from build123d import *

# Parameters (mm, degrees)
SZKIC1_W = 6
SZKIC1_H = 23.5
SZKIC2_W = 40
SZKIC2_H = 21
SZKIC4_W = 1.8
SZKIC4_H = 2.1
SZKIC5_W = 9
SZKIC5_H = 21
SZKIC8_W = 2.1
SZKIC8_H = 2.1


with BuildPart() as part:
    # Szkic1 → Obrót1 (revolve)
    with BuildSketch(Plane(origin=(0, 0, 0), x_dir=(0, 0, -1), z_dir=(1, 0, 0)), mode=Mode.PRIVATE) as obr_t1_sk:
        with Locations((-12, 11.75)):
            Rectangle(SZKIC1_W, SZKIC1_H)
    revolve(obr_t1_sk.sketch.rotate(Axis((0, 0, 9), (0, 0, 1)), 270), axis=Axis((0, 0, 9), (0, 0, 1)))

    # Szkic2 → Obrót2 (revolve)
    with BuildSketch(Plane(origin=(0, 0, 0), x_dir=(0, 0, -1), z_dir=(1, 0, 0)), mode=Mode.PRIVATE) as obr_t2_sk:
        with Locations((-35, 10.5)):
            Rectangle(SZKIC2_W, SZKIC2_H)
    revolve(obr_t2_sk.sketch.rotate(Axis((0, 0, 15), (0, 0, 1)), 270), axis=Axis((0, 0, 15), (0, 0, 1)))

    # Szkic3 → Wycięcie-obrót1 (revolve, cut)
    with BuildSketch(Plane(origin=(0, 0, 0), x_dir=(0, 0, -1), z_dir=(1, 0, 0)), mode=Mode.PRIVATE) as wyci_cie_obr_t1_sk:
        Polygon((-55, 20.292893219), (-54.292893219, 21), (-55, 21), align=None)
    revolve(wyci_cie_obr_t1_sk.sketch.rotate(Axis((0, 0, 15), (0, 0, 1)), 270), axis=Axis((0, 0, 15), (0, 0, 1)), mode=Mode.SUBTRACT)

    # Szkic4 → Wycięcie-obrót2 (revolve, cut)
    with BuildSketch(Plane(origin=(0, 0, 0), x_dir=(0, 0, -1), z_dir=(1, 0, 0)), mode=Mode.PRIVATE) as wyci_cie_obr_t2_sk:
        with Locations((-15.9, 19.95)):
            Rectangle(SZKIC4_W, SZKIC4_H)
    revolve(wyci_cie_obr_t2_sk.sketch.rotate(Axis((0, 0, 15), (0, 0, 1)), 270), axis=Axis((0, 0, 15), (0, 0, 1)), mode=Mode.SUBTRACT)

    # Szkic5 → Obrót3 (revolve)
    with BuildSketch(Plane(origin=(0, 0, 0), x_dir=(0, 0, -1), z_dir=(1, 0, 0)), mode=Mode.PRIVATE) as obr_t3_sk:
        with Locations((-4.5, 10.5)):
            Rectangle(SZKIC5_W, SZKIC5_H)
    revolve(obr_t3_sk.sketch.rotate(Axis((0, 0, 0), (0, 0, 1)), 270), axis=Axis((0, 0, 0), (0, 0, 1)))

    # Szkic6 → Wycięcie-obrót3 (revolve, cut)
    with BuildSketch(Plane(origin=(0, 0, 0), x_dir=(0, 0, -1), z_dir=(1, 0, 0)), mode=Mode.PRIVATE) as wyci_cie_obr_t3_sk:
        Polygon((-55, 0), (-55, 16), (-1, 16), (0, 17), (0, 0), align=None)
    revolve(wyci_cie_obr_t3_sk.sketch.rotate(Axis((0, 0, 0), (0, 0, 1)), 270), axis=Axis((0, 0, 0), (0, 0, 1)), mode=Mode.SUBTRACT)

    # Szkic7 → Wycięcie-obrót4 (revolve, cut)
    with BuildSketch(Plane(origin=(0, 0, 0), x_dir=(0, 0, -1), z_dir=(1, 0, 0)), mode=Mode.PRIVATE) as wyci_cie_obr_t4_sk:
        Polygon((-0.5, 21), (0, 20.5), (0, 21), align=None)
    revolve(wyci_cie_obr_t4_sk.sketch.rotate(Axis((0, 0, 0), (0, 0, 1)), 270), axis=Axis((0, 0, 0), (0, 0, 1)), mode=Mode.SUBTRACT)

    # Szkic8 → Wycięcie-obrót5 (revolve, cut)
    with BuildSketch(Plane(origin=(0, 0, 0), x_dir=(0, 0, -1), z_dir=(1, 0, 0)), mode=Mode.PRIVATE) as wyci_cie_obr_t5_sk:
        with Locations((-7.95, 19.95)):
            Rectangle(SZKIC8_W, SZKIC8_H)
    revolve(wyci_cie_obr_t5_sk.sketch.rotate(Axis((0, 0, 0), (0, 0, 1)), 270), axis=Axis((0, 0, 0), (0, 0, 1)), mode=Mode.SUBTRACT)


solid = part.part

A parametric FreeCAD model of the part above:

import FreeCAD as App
import Part
import Sketcher
from FreeCAD import Vector

doc = App.newDocument("Part")
body = doc.addObject("PartDesign::Body", "Body")

# Sketch on YZ plane
sketch1 = body.newObject("Sketcher::SketchObject", "Sketch")
sketch1.AttachmentSupport = (doc.getObject("YZ_Plane"), [""])
sketch1.MapMode = "FlatFace"
sketch1.addGeometry([
    Part.LineSegment(Vector(23.5, 15, 0), Vector(0, 15, 0)),
    Part.LineSegment(Vector(0, 15, 0), Vector(0, 9, 0)),
    Part.LineSegment(Vector(0, 9, 0), Vector(23.5, 9, 0)),
    Part.LineSegment(Vector(23.5, 9, 0), Vector(23.5, 15, 0)),
], False)
sketch1.addConstraint([
    Sketcher.Constraint("Coincident", 0, 2, 1, 1),
    Sketcher.Constraint("Coincident", 1, 2, 2, 1),
    Sketcher.Constraint("Coincident", 2, 2, 3, 1),
    Sketcher.Constraint("Coincident", 3, 2, 0, 1),
    Sketcher.Constraint("Horizontal", 0),
    Sketcher.Constraint("Vertical", 1),
    Sketcher.Constraint("Horizontal", 2),
    Sketcher.Constraint("Vertical", 3),
    Sketcher.Constraint("PointOnObject", 0, 2, -2),
    Sketcher.Constraint("DistanceY", 1, 2, 1, 1, 6.0),
    Sketcher.Constraint("DistanceX", 0, 2, 0, 1, 23.5),
    Sketcher.Constraint("DistanceY", -1, 1, 0, 2, 15.0),
])
revolution = body.newObject("PartDesign::Revolution", "Revolution")
revolution.Profile = sketch1
revolution.ReferenceAxis = (sketch1, ["V_Axis"])
revolution.Angle = 360

# Sketch on YZ plane
sketch2 = body.newObject("Sketcher::SketchObject", "Sketch001")
sketch2.AttachmentSupport = (doc.getObject("YZ_Plane"), [""])
sketch2.MapMode = "FlatFace"
sketch2.addGeometry([
    Part.LineSegment(Vector(21, 55, 0), Vector(0, 55, 0)),
    Part.LineSegment(Vector(0, 55, 0), Vector(0, 15, 0)),
    Part.LineSegment(Vector(0, 15, 0), Vector(21, 15, 0)),
    Part.LineSegment(Vector(21, 15, 0), Vector(21, 55, 0)),
], False)
sketch2.addConstraint([
    Sketcher.Constraint("Coincident", 0, 2, 1, 1),
    Sketcher.Constraint("Coincident", 1, 2, 2, 1),
    Sketcher.Constraint("Coincident", 2, 2, 3, 1),
    Sketcher.Constraint("Coincident", 3, 2, 0, 1),
    Sketcher.Constraint("Horizontal", 0),
    Sketcher.Constraint("Vertical", 1),
    Sketcher.Constraint("Horizontal", 2),
    Sketcher.Constraint("Vertical", 3),
    Sketcher.Constraint("PointOnObject", 0, 2, -2),
    Sketcher.Constraint("DistanceX", 0, 2, 0, 1, 21.0),
    Sketcher.Constraint("DistanceY", 1, 2, 1, 1, 40.0),
    Sketcher.Constraint("DistanceY", -1, 1, 0, 2, 55.0),
])
revolution2 = body.newObject("PartDesign::Revolution", "Revolution001")
revolution2.Profile = sketch2
revolution2.ReferenceAxis = (sketch2, ["V_Axis"])
revolution2.Angle = 360

# Sketch on YZ plane
sketch3 = body.newObject("Sketcher::SketchObject", "Sketch002")
sketch3.AttachmentSupport = (doc.getObject("YZ_Plane"), [""])
sketch3.MapMode = "FlatFace"
sketch3.addGeometry([
    Part.LineSegment(Vector(20.292893, 55, 0), Vector(21, 54.292893, 0)),
    Part.LineSegment(Vector(21, 54.292893, 0), Vector(21, 55, 0)),
    Part.LineSegment(Vector(21, 55, 0), Vector(20.292893, 55, 0)),
], False)
sketch3.addConstraint([
    Sketcher.Constraint("Coincident", 0, 2, 1, 1),
    Sketcher.Constraint("Coincident", 1, 2, 2, 1),
    Sketcher.Constraint("Coincident", 2, 2, 0, 1),
    Sketcher.Constraint("Vertical", 1),
    Sketcher.Constraint("Horizontal", 2),
    Sketcher.Constraint("Equal", 2, 1),
    Sketcher.Constraint("Distance", 0, 1.0),
    Sketcher.Constraint("DistanceX", -1, 1, 0, 2, 21.0),
    Sketcher.Constraint("DistanceY", -1, 1, 1, 2, 55.0),
])
groove = body.newObject("PartDesign::Groove", "Groove")
groove.Profile = sketch3
groove.ReferenceAxis = (sketch3, ["V_Axis"])
groove.Angle = 360

# Sketch on YZ plane
sketch4 = body.newObject("Sketcher::SketchObject", "Sketch003")
sketch4.AttachmentSupport = (doc.getObject("YZ_Plane"), [""])
sketch4.MapMode = "FlatFace"
sketch4.addGeometry([
    Part.LineSegment(Vector(21, 16.8, 0), Vector(18.9, 16.8, 0)),
    Part.LineSegment(Vector(18.9, 16.8, 0), Vector(18.9, 15, 0)),
    Part.LineSegment(Vector(18.9, 15, 0), Vector(21, 15, 0)),
    Part.LineSegment(Vector(21, 15, 0), Vector(21, 16.8, 0)),
], False)
sketch4.addConstraint([
    Sketcher.Constraint("Coincident", 0, 2, 1, 1),
    Sketcher.Constraint("Coincident", 1, 2, 2, 1),
    Sketcher.Constraint("Coincident", 2, 2, 3, 1),
    Sketcher.Constraint("Coincident", 3, 2, 0, 1),
    Sketcher.Constraint("Horizontal", 0),
    Sketcher.Constraint("Vertical", 1),
    Sketcher.Constraint("Horizontal", 2),
    Sketcher.Constraint("Vertical", 3),
    Sketcher.Constraint("DistanceX", 0, 2, 0, 1, 2.1),
    Sketcher.Constraint("DistanceY", 1, 2, 1, 1, 1.8),
    Sketcher.Constraint("DistanceY", -1, 1, 1, 2, 15.0),
    Sketcher.Constraint("DistanceX", -1, 1, 2, 2, 21.0),
])
groove2 = body.newObject("PartDesign::Groove", "Groove001")
groove2.Profile = sketch4
groove2.ReferenceAxis = (sketch4, ["V_Axis"])
groove2.Angle = 360

# Sketch on YZ plane
sketch5 = body.newObject("Sketcher::SketchObject", "Sketch004")
sketch5.AttachmentSupport = (doc.getObject("YZ_Plane"), [""])
sketch5.MapMode = "FlatFace"
sketch5.addGeometry([
    Part.LineSegment(Vector(21, 9, 0), Vector(0, 9, 0)),
    Part.LineSegment(Vector(0, 9, 0), Vector(0, 0, 0)),
    Part.LineSegment(Vector(0, 0, 0), Vector(21, 0, 0)),
    Part.LineSegment(Vector(21, 0, 0), Vector(21, 9, 0)),
], False)
sketch5.addConstraint([
    Sketcher.Constraint("Coincident", 0, 2, 1, 1),
    Sketcher.Constraint("Coincident", 1, 2, 2, 1),
    Sketcher.Constraint("Coincident", 2, 2, 3, 1),
    Sketcher.Constraint("Coincident", 3, 2, 0, 1),
    Sketcher.Constraint("Horizontal", 0),
    Sketcher.Constraint("Vertical", 1),
    Sketcher.Constraint("Horizontal", 2),
    Sketcher.Constraint("Vertical", 3),
    Sketcher.Constraint("Coincident", 1, 2, -1, 1),
    Sketcher.Constraint("DistanceX", 0, 2, 0, 1, 21.0),
    Sketcher.Constraint("DistanceY", 1, 2, 1, 1, 9.0),
])
revolution3 = body.newObject("PartDesign::Revolution", "Revolution002")
revolution3.Profile = sketch5
revolution3.ReferenceAxis = (sketch5, ["V_Axis"])
revolution3.Angle = 360

# Sketch on YZ plane
sketch6 = body.newObject("Sketcher::SketchObject", "Sketch005")
sketch6.AttachmentSupport = (doc.getObject("YZ_Plane"), [""])
sketch6.MapMode = "FlatFace"
sketch6.addGeometry([
    Part.LineSegment(Vector(16, 55, 0), Vector(0, 55, 0)),  # 0
    Part.LineSegment(Vector(0, 55, 0), Vector(0, 0, 0)),  # 1
    Part.LineSegment(Vector(0, 0, 0), Vector(17, 0, 0)),  # 2
    Part.LineSegment(Vector(17, 0, 0), Vector(16, 1, 0)),  # 3
    Part.LineSegment(Vector(16, 1, 0), Vector(16, 55, 0)),  # 4
], False)
sketch6.addConstraint([
    Sketcher.Constraint("Coincident", 0, 2, 1, 1),
    Sketcher.Constraint("Coincident", 1, 2, 2, 1),
    Sketcher.Constraint("Coincident", 2, 2, 3, 1),
    Sketcher.Constraint("Coincident", 3, 2, 4, 1),
    Sketcher.Constraint("Coincident", 4, 2, 0, 1),
    Sketcher.Constraint("Horizontal", 0),
    Sketcher.Constraint("Vertical", 1),
    Sketcher.Constraint("Horizontal", 2),
    Sketcher.Constraint("Vertical", 4),
    Sketcher.Constraint("Coincident", 1, 2, -1, 1),
    Sketcher.Constraint("DistanceX", 0, 2, 0, 1, 16.0),
    Sketcher.Constraint("DistanceX", 2, 1, 2, 2, 17.0),
    Sketcher.Constraint("DistanceY", 1, 2, 1, 1, 55.0),
    Sketcher.Constraint("DistanceY", 4, 1, 4, 2, 54.0),
])
groove3 = body.newObject("PartDesign::Groove", "Groove002")
groove3.Profile = sketch6
groove3.ReferenceAxis = (sketch6, ["V_Axis"])
groove3.Angle = 360

# Sketch on YZ plane
sketch7 = body.newObject("Sketcher::SketchObject", "Sketch006")
sketch7.AttachmentSupport = (doc.getObject("YZ_Plane"), [""])
sketch7.MapMode = "FlatFace"
sketch7.addGeometry([
    Part.LineSegment(Vector(21, 0.5, 0), Vector(20.5, 0, 0)),
    Part.LineSegment(Vector(20.5, 0, 0), Vector(21, 0, 0)),
    Part.LineSegment(Vector(21, 0, 0), Vector(21, 0.5, 0)),
], False)
sketch7.addConstraint([
    Sketcher.Constraint("Coincident", 0, 2, 1, 1),
    Sketcher.Constraint("Coincident", 1, 2, 2, 1),
    Sketcher.Constraint("Coincident", 2, 2, 0, 1),
    Sketcher.Constraint("Horizontal", 1),
    Sketcher.Constraint("Vertical", 2),
    Sketcher.Constraint("PointOnObject", 0, 2, -1),
    Sketcher.Constraint("Equal", 1, 2),
    Sketcher.Constraint("DistanceX", 1, 1, 1, 2, 0.5),
    Sketcher.Constraint("DistanceX", -1, 1, 1, 2, 21.0),
])
groove4 = body.newObject("PartDesign::Groove", "Groove003")
groove4.Profile = sketch7
groove4.ReferenceAxis = (sketch7, ["V_Axis"])
groove4.Angle = 360

# Sketch on YZ plane
sketch8 = body.newObject("Sketcher::SketchObject", "Sketch007")
sketch8.AttachmentSupport = (doc.getObject("YZ_Plane"), [""])
sketch8.MapMode = "FlatFace"
sketch8.addGeometry([
    Part.LineSegment(Vector(21, 9, 0), Vector(18.9, 9, 0)),
    Part.LineSegment(Vector(18.9, 9, 0), Vector(18.9, 6.9, 0)),
    Part.LineSegment(Vector(18.9, 6.9, 0), Vector(21, 6.9, 0)),
    Part.LineSegment(Vector(21, 6.9, 0), Vector(21, 9, 0)),
], False)
sketch8.addConstraint([
    Sketcher.Constraint("Coincident", 0, 2, 1, 1),
    Sketcher.Constraint("Coincident", 1, 2, 2, 1),
    Sketcher.Constraint("Coincident", 2, 2, 3, 1),
    Sketcher.Constraint("Coincident", 3, 2, 0, 1),
    Sketcher.Constraint("Horizontal", 0),
    Sketcher.Constraint("Vertical", 1),
    Sketcher.Constraint("Horizontal", 2),
    Sketcher.Constraint("Vertical", 3),
    Sketcher.Constraint("Equal", 2, 1),
    Sketcher.Constraint("DistanceX", 0, 2, 0, 1, 2.1),
    Sketcher.Constraint("DistanceY", -1, 1, 0, 2, 9.0),
    Sketcher.Constraint("DistanceX", -1, 1, 2, 2, 21.0),
])
groove5 = body.newObject("PartDesign::Groove", "Groove004")
groove5.Profile = sketch8
groove5.ReferenceAxis = (sketch8, ["V_Axis"])
groove5.Angle = 360

doc.recompute()
